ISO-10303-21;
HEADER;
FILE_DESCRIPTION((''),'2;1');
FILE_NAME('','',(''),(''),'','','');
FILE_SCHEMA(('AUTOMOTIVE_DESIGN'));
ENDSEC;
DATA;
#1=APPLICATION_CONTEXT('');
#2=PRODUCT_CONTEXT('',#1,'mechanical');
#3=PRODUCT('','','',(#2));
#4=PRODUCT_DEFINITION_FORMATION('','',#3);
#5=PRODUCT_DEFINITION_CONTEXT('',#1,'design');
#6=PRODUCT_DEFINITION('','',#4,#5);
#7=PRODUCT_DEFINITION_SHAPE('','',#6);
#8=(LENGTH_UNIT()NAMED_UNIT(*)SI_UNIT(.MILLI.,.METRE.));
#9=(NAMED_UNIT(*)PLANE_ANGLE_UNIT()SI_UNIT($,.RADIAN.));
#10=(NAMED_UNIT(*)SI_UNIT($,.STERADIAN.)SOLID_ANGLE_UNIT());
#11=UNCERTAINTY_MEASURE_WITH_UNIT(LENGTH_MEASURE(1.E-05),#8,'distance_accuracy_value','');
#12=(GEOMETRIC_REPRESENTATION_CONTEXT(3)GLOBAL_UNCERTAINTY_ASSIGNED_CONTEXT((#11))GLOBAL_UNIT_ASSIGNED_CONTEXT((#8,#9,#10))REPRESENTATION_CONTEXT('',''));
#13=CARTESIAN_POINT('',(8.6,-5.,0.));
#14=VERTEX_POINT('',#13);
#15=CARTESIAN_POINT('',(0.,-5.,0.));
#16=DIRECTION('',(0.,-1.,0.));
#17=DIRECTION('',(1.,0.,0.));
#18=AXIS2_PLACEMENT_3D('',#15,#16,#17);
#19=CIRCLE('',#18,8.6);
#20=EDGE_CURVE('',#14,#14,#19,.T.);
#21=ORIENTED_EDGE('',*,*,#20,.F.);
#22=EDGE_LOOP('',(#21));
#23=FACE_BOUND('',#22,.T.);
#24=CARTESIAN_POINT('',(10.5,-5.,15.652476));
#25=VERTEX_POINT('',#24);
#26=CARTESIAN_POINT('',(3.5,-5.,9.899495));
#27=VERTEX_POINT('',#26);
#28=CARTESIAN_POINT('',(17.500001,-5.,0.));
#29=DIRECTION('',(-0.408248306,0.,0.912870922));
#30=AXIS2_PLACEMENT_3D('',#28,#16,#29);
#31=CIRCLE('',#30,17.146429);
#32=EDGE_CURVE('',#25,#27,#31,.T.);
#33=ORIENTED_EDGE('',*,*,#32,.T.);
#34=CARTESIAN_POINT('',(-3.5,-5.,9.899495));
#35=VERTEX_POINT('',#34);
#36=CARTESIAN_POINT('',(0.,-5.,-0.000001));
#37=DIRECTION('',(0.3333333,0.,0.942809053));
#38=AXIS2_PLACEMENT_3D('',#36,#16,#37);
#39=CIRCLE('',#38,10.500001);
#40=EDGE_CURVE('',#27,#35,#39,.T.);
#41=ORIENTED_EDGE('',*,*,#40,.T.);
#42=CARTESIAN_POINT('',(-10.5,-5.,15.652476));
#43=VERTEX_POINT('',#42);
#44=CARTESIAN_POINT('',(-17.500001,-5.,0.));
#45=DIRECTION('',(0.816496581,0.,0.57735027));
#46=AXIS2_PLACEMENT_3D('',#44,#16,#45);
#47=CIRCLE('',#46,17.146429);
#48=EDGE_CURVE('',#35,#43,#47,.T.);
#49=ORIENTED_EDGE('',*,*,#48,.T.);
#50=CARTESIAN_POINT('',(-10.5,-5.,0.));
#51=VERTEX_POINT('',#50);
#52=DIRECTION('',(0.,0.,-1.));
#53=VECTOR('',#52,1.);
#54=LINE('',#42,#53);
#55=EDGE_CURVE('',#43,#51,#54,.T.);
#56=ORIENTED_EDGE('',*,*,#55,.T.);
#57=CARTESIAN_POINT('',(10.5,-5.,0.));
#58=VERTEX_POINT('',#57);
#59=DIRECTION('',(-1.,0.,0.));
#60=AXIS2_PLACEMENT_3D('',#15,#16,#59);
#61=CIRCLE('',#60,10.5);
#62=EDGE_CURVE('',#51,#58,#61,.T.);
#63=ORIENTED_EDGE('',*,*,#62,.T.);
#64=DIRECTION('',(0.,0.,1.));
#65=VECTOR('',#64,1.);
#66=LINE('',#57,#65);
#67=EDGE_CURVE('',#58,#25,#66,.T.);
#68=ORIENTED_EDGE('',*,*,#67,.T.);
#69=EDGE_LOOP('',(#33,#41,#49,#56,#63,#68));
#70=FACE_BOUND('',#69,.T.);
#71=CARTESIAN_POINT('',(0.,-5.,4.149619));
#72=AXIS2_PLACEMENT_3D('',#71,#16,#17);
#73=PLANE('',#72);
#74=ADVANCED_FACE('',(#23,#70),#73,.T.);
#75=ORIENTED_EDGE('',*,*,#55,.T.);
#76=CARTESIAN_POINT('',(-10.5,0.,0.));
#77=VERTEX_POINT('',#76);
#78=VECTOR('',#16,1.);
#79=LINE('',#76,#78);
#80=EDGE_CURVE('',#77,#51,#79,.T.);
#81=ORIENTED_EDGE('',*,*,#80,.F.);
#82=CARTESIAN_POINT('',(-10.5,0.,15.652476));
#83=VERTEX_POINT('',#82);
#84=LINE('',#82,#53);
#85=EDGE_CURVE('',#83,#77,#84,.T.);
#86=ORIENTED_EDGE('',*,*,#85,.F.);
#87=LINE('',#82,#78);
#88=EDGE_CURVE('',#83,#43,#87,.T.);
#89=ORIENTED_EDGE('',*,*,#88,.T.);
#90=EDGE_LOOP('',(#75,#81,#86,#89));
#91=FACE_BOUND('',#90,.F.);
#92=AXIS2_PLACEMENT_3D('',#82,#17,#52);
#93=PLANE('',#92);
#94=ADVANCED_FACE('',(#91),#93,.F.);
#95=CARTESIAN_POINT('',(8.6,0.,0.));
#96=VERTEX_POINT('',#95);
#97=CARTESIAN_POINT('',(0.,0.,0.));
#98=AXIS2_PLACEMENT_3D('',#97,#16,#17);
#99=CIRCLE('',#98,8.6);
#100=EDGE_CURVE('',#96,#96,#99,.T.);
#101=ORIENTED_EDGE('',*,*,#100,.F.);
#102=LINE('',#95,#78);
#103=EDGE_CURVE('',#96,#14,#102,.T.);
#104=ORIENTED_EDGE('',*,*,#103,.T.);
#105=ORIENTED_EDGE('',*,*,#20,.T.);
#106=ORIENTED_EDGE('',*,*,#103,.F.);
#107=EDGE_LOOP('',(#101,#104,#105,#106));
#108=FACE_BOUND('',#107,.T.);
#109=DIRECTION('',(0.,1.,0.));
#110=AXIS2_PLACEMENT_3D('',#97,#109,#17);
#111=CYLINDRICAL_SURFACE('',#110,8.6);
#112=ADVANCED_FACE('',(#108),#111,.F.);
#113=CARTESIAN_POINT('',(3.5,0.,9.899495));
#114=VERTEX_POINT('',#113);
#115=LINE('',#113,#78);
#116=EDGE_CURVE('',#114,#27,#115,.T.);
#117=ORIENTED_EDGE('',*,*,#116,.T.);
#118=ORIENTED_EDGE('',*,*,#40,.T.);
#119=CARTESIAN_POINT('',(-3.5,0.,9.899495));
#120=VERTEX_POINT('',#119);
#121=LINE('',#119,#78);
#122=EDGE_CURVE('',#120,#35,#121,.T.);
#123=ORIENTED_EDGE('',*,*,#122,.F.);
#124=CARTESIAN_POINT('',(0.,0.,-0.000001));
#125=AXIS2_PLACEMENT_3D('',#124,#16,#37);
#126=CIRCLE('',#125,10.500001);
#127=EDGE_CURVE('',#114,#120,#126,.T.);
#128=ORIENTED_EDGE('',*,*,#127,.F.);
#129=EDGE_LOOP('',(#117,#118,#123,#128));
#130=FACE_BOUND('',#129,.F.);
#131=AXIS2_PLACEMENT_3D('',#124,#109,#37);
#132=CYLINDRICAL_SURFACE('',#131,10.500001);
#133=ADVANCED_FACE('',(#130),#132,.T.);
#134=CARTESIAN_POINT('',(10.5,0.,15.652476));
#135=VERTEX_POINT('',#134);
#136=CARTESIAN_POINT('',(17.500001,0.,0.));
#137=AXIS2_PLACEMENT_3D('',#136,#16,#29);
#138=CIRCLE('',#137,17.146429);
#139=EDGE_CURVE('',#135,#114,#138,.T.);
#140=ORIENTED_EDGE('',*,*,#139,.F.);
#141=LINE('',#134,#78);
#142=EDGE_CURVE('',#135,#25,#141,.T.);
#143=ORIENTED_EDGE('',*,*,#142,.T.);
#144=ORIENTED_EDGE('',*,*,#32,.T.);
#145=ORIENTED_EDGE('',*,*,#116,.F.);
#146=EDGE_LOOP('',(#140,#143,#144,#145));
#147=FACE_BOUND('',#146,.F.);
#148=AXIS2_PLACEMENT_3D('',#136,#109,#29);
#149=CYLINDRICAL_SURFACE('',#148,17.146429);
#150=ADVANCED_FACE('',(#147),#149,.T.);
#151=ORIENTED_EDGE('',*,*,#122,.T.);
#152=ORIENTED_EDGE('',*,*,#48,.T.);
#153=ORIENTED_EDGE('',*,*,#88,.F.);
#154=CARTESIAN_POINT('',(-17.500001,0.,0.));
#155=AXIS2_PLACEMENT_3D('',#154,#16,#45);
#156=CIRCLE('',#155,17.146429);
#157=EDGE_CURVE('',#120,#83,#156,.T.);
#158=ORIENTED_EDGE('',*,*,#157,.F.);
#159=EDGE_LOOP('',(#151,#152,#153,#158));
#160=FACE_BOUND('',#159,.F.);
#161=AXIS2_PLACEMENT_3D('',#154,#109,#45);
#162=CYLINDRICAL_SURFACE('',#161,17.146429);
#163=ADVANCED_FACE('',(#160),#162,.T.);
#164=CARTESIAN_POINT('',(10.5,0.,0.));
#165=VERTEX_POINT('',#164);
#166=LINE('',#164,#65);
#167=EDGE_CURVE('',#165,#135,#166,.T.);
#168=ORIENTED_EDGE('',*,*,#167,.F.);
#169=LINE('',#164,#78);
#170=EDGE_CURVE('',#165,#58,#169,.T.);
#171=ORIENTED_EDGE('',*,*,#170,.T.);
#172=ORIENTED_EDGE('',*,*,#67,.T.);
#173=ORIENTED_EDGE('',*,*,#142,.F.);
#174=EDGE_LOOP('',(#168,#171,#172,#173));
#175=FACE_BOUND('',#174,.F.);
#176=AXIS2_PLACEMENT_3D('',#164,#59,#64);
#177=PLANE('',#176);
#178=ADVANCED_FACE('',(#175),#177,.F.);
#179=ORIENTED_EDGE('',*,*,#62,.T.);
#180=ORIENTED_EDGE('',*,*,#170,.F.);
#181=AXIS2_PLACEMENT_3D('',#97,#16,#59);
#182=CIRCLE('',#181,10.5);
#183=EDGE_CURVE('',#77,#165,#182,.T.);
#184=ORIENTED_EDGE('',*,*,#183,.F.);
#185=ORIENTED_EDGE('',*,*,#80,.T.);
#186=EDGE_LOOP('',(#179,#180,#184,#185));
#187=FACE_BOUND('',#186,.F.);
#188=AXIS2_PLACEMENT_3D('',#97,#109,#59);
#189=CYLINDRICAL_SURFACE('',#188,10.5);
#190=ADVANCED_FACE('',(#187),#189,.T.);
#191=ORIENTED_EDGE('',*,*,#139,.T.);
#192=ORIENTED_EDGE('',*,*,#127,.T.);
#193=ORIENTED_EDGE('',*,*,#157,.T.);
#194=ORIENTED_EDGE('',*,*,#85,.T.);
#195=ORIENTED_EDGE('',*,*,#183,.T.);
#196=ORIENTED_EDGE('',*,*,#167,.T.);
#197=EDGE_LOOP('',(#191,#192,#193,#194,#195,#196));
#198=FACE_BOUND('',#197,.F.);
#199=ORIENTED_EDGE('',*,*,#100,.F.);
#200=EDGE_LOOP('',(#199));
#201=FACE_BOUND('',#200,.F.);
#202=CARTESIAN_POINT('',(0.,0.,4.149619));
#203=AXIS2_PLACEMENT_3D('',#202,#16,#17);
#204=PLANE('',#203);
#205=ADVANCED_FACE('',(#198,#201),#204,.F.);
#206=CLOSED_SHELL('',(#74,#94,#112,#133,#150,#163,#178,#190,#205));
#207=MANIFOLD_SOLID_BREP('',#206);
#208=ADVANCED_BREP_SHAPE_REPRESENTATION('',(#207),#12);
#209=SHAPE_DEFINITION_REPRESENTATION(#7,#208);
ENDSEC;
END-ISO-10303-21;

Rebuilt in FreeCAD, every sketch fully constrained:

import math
import FreeCAD as App
import Part
import Sketcher
from FreeCAD import Vector
Q = App.Units.Quantity

doc = App.newDocument("Part")
params = doc.addObject("Spreadsheet::Sheet", "Params")
for row, (alias, value) in enumerate([
    ("sketch1_diameter", "17.2 mm"),
    ("sketch1_radius", "10.5 mm"),
    ("pad1_length", "5 mm"),
], start=1):
    params.set(f"A{row}", alias)
    params.set(f"B{row}", "=" + value)
    params.setAlias(f"B{row}", alias)

body = doc.addObject("PartDesign::Body", "Body")

sketch1 = body.newObject("Sketcher::SketchObject", "Sketch")
sketch1.AttachmentSupport = (doc.getObject("XZ_Plane"), [""])
sketch1.MapMode = "FlatFace"
sketch1.addGeometry(Part.LineSegment(Vector(-10, 16, 0), Vector(-10, 0, 0)), False)
sketch1.addGeometry(Part.ArcOfCircle(Part.Circle(Vector(0, 0, 0), Vector(0, 0, 1), 10), math.radians(180), math.radians(360)), False)
sketch1.addGeometry(Part.LineSegment(Vector(10, 0, 0), Vector(10, 16, 0)), False)
sketch1.addGeometry(Part.ArcOfCircle(Part.Circle(Vector(18, 0, 0), Vector(0, 0, 1), 17), math.radians(114), math.radians(145)), False)
sketch1.addGeometry(Part.ArcOfCircle(Part.Circle(Vector(0, 0, 0), Vector(0, 0, 1), 11), math.radians(71), math.radians(109)), False)
sketch1.addGeometry(Part.ArcOfCircle(Part.Circle(Vector(-18, 0, 0), Vector(0, 0, 1), 17), math.radians(35), math.radians(66)), False)
sketch1.addGeometry(Part.Circle(Vector(0, 0, 0), Vector(0, 0, 1), 9), False)
sketch1.addConstraint(Sketcher.Constraint("Tangent", 0, 2, 1, 1))
sketch1.addConstraint(Sketcher.Constraint("Tangent", 1, 2, 2, 1))
sketch1.addConstraint(Sketcher.Constraint("Coincident", 2, 2, 3, 1))
sketch1.addConstraint(Sketcher.Constraint("Coincident", 3, 2, 4, 1))
sketch1.addConstraint(Sketcher.Constraint("Coincident", 4, 2, 5, 1))
sketch1.addConstraint(Sketcher.Constraint("Coincident", 5, 2, 0, 1))
sketch1.addConstraint(Sketcher.Constraint("Vertical", 0))
sketch1.addConstraint(Sketcher.Constraint("Vertical", 2))
sketch1.addConstraint(Sketcher.Constraint("Coincident", 1, 3, -1, 1))
sketch1.addConstraint(Sketcher.Constraint("Coincident", 4, 3, -1, 1))
sketch1.addConstraint(Sketcher.Constraint("Coincident", 6, 3, -1, 1))
sketch1.addConstraint(Sketcher.Constraint("Equal", 1, 4))
sketch1.addConstraint(Sketcher.Constraint("Equal", 3, 5))
sketch1.addConstraint(Sketcher.Constraint("Symmetric", 3, 3, 5, 3, -1, 1))
sketch1.addConstraint(Sketcher.Constraint("PointOnObject", 3, 3, -1))
sketch1.addConstraint(Sketcher.Constraint("Diameter", 6, Q("17.2 mm")))
sketch1.addConstraint(Sketcher.Constraint("Radius", 1, Q("10.5 mm")))
sketch1.addConstraint(Sketcher.Constraint("DistanceX", 5, 3, 3, 3, Q("35.000001 mm")))
sketch1.addConstraint(Sketcher.Constraint("DistanceX", 3, 2, 2, 2, Q("7 mm")))
sketch1.setExpression("Constraints[15]", "Params.sketch1_diameter")
sketch1.setExpression("Constraints[16]", "Params.sketch1_radius")
pad1 = body.newObject("PartDesign::Pad", "Pad")
pad1.Profile = sketch1
pad1.setExpression("Length", "Params.pad1_length")

doc.recompute()
